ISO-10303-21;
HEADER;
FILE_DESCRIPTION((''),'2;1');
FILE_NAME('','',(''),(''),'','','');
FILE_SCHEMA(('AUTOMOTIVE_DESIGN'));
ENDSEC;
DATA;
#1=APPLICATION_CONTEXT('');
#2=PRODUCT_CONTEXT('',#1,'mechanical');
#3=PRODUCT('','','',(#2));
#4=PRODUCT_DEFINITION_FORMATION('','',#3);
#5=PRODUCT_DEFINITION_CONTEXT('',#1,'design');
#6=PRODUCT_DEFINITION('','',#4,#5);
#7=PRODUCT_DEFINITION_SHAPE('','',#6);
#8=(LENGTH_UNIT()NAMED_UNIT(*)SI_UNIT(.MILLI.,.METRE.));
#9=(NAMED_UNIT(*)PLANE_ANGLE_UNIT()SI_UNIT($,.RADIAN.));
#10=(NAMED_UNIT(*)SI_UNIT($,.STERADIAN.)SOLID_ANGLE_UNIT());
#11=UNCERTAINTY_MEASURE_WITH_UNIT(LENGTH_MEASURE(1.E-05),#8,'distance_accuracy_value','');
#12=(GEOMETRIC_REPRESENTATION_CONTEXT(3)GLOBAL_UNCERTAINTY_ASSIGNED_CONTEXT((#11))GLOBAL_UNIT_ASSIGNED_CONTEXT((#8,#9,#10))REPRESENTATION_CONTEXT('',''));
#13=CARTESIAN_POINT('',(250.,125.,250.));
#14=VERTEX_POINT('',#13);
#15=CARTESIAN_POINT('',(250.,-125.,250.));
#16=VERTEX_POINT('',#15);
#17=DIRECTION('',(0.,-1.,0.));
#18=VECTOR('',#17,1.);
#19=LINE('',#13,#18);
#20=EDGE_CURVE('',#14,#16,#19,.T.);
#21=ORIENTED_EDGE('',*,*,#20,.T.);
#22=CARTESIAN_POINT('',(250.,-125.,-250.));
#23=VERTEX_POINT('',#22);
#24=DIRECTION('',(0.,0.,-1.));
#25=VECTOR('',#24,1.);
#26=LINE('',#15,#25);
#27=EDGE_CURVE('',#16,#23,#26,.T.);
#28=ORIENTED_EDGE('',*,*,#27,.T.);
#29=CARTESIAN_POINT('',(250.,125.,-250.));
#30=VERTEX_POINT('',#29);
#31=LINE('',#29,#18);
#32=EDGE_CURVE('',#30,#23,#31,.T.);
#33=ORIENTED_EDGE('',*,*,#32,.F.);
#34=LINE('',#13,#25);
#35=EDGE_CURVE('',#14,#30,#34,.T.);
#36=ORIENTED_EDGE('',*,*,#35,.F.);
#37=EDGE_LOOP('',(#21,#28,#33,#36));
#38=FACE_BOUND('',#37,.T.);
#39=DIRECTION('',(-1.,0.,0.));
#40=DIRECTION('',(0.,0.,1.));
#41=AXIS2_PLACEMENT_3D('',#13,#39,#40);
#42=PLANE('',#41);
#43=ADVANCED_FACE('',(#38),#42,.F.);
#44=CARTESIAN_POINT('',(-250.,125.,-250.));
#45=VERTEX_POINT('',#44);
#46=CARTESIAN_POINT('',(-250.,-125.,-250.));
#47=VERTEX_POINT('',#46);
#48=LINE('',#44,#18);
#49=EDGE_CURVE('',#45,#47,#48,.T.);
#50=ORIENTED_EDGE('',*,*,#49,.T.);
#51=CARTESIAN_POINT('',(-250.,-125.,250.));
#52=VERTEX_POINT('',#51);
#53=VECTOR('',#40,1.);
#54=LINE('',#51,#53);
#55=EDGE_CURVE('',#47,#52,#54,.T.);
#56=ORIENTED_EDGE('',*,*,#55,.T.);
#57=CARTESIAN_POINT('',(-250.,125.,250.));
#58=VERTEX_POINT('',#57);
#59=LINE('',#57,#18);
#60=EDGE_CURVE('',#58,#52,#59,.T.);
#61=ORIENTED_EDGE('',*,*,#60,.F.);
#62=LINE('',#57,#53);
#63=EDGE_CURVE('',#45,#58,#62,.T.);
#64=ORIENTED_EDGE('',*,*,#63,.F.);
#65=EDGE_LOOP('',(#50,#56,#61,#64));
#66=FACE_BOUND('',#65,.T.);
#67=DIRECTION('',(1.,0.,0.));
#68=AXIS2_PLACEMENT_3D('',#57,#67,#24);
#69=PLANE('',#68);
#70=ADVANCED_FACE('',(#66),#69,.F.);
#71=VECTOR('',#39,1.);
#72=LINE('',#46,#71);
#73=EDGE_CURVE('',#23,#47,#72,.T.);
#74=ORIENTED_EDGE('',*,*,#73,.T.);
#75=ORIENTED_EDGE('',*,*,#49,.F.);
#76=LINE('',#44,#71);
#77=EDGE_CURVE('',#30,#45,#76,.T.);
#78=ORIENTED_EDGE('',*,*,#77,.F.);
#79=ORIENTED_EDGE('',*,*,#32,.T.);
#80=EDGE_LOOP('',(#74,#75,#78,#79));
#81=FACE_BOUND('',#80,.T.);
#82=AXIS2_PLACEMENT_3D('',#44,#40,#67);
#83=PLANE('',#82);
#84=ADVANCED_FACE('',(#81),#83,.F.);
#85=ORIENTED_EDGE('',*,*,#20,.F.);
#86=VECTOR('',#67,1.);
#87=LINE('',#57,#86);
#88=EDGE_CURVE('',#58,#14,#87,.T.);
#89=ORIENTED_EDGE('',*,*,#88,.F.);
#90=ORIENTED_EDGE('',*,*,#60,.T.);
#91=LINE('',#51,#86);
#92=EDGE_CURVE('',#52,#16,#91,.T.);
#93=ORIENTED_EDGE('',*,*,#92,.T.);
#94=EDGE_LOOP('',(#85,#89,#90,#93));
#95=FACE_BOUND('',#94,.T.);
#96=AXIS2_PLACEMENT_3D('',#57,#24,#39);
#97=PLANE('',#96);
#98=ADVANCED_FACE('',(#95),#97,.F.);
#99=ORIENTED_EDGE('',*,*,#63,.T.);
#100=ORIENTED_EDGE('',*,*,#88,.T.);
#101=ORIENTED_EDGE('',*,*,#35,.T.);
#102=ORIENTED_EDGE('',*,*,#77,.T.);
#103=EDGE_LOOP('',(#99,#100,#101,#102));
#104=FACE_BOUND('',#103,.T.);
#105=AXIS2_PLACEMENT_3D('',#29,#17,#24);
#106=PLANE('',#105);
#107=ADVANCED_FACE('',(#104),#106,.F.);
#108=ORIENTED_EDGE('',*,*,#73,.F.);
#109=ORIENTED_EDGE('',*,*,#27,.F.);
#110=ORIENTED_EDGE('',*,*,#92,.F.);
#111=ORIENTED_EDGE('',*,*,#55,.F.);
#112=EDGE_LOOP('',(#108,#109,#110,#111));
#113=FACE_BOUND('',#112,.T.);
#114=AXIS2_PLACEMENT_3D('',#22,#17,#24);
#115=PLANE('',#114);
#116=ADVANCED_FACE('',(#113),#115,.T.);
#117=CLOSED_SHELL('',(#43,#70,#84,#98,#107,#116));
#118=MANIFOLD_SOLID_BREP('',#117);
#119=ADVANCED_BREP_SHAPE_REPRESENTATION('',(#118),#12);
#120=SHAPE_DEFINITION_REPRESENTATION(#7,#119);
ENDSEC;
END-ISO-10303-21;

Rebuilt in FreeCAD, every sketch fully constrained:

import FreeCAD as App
import Part
import Sketcher
Q = App.Units.Quantity

doc = App.newDocument("Part")
params = doc.addObject("Spreadsheet::Sheet", "Params")
for row, (alias, value) in enumerate([
    ("sketch1_width", "500 mm"),
    ("pad1_length", "250 mm"),
], start=1):
    params.set(f"A{row}", alias)
    params.set(f"B{row}", "=" + value)
    params.setAlias(f"B{row}", alias)

body = doc.addObject("PartDesign::Body", "Body")

# Sketch on XZ plane
sketch1 = body.newObject("Sketcher::SketchObject", "Sketch")
sketch1.AttachmentSupport = (doc.getObject("XZ_Plane"), [""])
sketch1.MapMode = "FlatFace"
sketch1.addGeometry(Part.LineSegment(App.Vector(-250, -250, 0), App.Vector(-250, 250, 0)), False)
sketch1.addGeometry(Part.LineSegment(App.Vector(-250, 250, 0), App.Vector(250, 250, 0)), False)
sketch1.addGeometry(Part.LineSegment(App.Vector(250, 250, 0), App.Vector(250, -250, 0)), False)
sketch1.addGeometry(Part.LineSegment(App.Vector(250, -250, 0), App.Vector(-250, -250, 0)), False)
sketch1.addConstraint(Sketcher.Constraint("Coincident", 0, 2, 1, 1))
sketch1.addConstraint(Sketcher.Constraint("Coincident", 1, 2, 2, 1))
sketch1.addConstraint(Sketcher.Constraint("Coincident", 2, 2, 3, 1))
sketch1.addConstraint(Sketcher.Constraint("Coincident", 3, 2, 0, 1))
sketch1.addConstraint(Sketcher.Constraint("Vertical", 0))
sketch1.addConstraint(Sketcher.Constraint("Horizontal", 1))
sketch1.addConstraint(Sketcher.Constraint("Vertical", 2))
sketch1.addConstraint(Sketcher.Constraint("Horizontal", 3))
sketch1.addConstraint(Sketcher.Constraint("Symmetric", 0, 2, 2, 2, -1, 1))
sketch1.addConstraint(Sketcher.Constraint("Equal", 3, 0))
sketch1.addConstraint(Sketcher.Constraint("DistanceX", 1, 1, 1, 2, Q("500 mm")))
sketch1.setExpression("Constraints[10]", "Params.sketch1_width")
pad1 = body.newObject("PartDesign::Pad", "Pad")
pad1.Profile = sketch1
pad1.setExpression("Length", "Params.pad1_length")
pad1.Midplane = True

doc.recompute()
